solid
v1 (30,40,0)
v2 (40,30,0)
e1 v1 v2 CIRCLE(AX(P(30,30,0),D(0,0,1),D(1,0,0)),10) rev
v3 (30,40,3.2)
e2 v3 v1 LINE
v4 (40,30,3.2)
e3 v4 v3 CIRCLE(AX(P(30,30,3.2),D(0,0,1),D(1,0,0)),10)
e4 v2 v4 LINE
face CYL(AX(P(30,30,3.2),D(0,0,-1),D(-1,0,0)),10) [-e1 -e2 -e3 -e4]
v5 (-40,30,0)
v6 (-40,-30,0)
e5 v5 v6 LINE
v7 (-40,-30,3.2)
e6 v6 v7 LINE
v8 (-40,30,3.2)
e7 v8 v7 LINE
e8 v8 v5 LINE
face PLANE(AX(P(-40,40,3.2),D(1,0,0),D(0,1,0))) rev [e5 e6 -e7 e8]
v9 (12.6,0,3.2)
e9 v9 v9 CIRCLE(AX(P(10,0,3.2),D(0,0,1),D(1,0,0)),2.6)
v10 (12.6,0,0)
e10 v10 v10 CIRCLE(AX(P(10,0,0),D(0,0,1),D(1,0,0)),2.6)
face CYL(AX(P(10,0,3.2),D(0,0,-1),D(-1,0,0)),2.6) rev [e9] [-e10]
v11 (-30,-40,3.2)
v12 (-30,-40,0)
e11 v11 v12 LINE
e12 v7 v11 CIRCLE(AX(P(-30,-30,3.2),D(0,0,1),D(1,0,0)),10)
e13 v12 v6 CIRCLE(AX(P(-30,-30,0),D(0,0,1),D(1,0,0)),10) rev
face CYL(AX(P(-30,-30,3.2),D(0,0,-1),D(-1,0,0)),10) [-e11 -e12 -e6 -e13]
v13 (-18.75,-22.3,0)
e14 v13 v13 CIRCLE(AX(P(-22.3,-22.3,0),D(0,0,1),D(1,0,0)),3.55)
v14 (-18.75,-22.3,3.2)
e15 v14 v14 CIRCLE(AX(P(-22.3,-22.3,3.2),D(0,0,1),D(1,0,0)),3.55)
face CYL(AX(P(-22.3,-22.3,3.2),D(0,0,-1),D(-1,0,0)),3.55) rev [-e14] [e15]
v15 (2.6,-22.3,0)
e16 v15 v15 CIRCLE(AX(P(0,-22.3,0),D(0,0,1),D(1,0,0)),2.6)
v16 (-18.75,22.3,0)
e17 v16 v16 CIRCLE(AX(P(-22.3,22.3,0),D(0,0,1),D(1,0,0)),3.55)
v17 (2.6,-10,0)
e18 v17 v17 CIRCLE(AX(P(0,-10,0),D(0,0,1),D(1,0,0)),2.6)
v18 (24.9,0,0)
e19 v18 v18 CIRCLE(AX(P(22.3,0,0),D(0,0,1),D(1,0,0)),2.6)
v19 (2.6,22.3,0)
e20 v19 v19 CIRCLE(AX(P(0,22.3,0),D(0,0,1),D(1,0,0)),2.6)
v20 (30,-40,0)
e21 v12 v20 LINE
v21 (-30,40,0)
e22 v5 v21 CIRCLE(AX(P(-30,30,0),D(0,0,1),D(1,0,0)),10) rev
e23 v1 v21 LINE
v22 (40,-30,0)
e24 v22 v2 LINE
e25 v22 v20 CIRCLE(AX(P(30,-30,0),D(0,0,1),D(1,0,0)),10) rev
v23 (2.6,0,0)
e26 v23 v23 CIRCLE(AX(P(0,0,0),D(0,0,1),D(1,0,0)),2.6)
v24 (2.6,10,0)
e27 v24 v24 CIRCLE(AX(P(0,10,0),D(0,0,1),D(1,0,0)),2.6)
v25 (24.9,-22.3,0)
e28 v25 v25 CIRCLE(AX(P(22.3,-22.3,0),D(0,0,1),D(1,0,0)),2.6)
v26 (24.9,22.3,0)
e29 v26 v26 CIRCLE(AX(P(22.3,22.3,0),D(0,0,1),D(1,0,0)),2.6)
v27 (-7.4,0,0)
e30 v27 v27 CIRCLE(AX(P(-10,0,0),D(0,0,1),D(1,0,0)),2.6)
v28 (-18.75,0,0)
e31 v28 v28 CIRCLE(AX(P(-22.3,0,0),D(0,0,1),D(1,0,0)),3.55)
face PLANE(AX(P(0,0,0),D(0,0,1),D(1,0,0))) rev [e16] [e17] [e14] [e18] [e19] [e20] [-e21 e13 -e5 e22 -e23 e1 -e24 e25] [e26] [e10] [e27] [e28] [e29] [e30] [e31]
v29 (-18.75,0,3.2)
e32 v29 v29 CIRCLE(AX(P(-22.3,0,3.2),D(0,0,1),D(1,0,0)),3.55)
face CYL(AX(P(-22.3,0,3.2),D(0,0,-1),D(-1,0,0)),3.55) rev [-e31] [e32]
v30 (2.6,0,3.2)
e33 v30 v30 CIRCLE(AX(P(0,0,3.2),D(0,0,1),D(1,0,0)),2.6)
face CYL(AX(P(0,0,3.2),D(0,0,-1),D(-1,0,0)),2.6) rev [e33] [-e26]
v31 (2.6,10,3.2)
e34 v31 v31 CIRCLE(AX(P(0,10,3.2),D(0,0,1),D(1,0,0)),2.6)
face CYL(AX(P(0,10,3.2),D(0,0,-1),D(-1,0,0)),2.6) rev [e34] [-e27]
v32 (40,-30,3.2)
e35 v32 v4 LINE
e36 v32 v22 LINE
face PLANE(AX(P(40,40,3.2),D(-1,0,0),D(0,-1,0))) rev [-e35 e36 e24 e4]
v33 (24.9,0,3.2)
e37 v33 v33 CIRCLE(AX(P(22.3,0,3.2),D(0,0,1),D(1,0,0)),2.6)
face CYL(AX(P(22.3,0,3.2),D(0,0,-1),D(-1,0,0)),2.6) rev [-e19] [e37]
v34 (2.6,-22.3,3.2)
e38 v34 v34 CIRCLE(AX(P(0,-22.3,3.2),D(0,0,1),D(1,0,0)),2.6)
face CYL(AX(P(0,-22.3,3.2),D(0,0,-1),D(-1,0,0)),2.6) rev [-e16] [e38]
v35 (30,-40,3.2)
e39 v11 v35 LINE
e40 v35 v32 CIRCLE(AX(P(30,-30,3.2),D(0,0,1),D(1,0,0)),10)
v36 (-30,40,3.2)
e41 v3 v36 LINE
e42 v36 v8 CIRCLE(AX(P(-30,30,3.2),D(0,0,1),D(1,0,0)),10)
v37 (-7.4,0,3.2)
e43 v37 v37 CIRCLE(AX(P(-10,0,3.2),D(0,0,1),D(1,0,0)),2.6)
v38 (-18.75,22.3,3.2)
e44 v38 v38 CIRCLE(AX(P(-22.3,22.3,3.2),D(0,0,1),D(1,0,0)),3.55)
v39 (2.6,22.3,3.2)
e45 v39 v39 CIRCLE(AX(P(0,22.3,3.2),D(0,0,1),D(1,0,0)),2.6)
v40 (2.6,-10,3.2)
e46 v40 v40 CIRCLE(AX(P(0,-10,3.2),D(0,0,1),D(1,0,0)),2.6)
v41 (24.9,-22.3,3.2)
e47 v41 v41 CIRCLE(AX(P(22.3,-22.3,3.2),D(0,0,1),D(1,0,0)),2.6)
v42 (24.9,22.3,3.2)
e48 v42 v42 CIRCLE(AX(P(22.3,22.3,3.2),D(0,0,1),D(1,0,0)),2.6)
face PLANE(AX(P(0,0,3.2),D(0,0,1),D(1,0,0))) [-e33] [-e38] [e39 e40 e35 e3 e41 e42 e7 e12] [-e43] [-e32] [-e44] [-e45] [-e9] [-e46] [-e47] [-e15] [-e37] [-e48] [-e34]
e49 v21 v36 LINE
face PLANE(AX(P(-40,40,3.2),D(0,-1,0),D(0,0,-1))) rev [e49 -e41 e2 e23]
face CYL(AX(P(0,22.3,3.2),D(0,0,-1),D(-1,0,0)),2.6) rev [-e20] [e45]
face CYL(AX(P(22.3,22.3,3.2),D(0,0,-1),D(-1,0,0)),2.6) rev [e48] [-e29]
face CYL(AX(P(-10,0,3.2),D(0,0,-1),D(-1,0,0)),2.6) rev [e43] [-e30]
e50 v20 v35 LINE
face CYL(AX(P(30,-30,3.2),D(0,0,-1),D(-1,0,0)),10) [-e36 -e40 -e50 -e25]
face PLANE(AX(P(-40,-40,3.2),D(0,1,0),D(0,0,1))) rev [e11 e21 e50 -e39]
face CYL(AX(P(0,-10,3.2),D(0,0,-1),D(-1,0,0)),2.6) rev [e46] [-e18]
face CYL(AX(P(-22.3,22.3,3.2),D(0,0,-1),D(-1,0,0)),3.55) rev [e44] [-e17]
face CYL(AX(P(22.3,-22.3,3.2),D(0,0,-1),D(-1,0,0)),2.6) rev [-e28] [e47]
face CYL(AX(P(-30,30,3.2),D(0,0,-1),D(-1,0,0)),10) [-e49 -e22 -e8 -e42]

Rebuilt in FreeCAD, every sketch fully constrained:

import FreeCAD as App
import Part
import Sketcher
Q = App.Units.Quantity


def edges_at(feature, points):
    """Names of the edges that pass closest to the given points."""
    edges = feature.Shape.Edges
    near = lambda p: min(range(len(edges)), key=lambda i: edges[i].distToShape(Part.Vertex(*p))[0])
    return sorted({f"Edge{near(p) + 1}" for p in points})


def add_polygon(sketch, points):
    """Adds a closed chain of lines whose ends are joined by coincident constraints."""
    first, n = sketch.GeometryCount, len(points)
    for a, b in zip(points, points[1:] + points[:1]):
        sketch.addGeometry(Part.LineSegment(App.Vector(*a, 0), App.Vector(*b, 0)), False)
    for i in range(n):
        sketch.addConstraint(Sketcher.Constraint("Coincident", first + i, 2, first + (i + 1) % n, 1))

doc = App.newDocument("Part")
params = doc.addObject("Spreadsheet::Sheet", "Params")
for row, (alias, value) in enumerate([
    ("sketch1_diameter", "7.1 mm"),
    ("sketch1_diameter2", "5.2 mm"),
    ("sketch1_width", "80 mm"),
    ("pad1_length", "3.2 mm"),
    ("fillet_radius", "10 mm"),
], start=1):
    params.set(f"A{row}", alias)
    params.set(f"B{row}", "=" + value)
    params.setAlias(f"B{row}", alias)

body = doc.addObject("PartDesign::Body", "Body")

# Sketch on XY plane
sketch1 = doc.addObject("Sketcher::SketchObject", "Sketch")
body.addObject(sketch1)
sketch1.AttachmentSupport = (doc.XY_Plane, [""])
sketch1.MapMode = "FlatFace"
add_polygon(sketch1, [(-40, 40), (-40, -40), (40, -40), (40, 40)])  # lines 0-3
sketch1.addGeometry(Part.Circle(App.Vector(-22.3, -22.3, 0), App.Vector(0, 0, 1), 3.5), False)  # 4
sketch1.addGeometry(Part.Circle(App.Vector(0, -22.3, 0), App.Vector(0, 0, 1), 2.6), False)  # 5
sketch1.addGeometry(Part.Circle(App.Vector(22.3, -22.3, 0), App.Vector(0, 0, 1), 2.6), False)  # 6
sketch1.addGeometry(Part.Circle(App.Vector(0, -10, 0), App.Vector(0, 0, 1), 2.6), False)  # 7
sketch1.addGeometry(Part.Circle(App.Vector(-22.3, 0, 0), App.Vector(0, 0, 1), 3.5), False)  # 8
sketch1.addGeometry(Part.Circle(App.Vector(-10, 0, 0), App.Vector(0, 0, 1), 2.6), False)  # 9
sketch1.addGeometry(Part.Circle(App.Vector(-22.3, 22.3, 0), App.Vector(0, 0, 1), 3.5), False)  # 10
sketch1.addGeometry(Part.Circle(App.Vector(0, 0, 0), App.Vector(0, 0, 1), 2.6), False)  # 11
sketch1.addGeometry(Part.Circle(App.Vector(10, 0, 0), App.Vector(0, 0, 1), 2.6), False)  # 12
sketch1.addGeometry(Part.Circle(App.Vector(0, 10, 0), App.Vector(0, 0, 1), 2.6), False)  # 13
sketch1.addGeometry(Part.Circle(App.Vector(22.3, 0, 0), App.Vector(0, 0, 1), 2.6), False)  # 14
sketch1.addGeometry(Part.Circle(App.Vector(0, 22.3, 0), App.Vector(0, 0, 1), 2.6), False)  # 15
sketch1.addGeometry(Part.Circle(App.Vector(22.3, 22.3, 0), App.Vector(0, 0, 1), 2.6), False)  # 16
sketch1.addConstraint([
    Sketcher.Constraint("Vertical", 0),
    Sketcher.Constraint("Horizontal", 1),
    Sketcher.Constraint("Vertical", 2),
    Sketcher.Constraint("Horizontal", 3),
    Sketcher.Constraint("Coincident", 11, 3, -1, 1),
    Sketcher.Constraint("Equal", 5, 6),
    Sketcher.Constraint("Equal", 6, 7),
    Sketcher.Constraint("Equal", 4, 8),
    Sketcher.Constraint("Equal", 7, 9),
    Sketcher.Constraint("Equal", 8, 10),
    Sketcher.Constraint("Equal", 9, 11),
    Sketcher.Constraint("Equal", 11, 12),
    Sketcher.Constraint("Equal", 12, 13),
    Sketcher.Constraint("Equal", 13, 14),
    Sketcher.Constraint("Equal", 14, 15),
    Sketcher.Constraint("Equal", 15, 16),
    Sketcher.Constraint("Symmetric", 6, 3, 10, 3, -1, 1),
    Sketcher.Constraint("Symmetric", 9, 3, 12, 3, -1, 1),
    Sketcher.Constraint("Symmetric", 7, 3, 13, 3, -1, 1),
    Sketcher.Constraint("Symmetric", 8, 3, 14, 3, -1, 1),
    Sketcher.Constraint("Symmetric", 5, 3, 15, 3, -1, 1),
    Sketcher.Constraint("Symmetric", 4, 3, 16, 3, -1, 1),
    Sketcher.Constraint("Symmetric", 0, 2, 2, 2, -1, 1),
    Sketcher.Constraint("Symmetric", 4, 3, 6, 3, -2),
    Sketcher.Constraint("PointOnObject", 5, 3, -2),
    Sketcher.Constraint("PointOnObject", 7, 3, -2),
    Sketcher.Constraint("PointOnObject", 8, 3, -1),
    Sketcher.Constraint("PointOnObject", 9, 3, -1),
    Sketcher.Constraint("Horizontal", 4, 3, 5, 3),
    Sketcher.Constraint("Vertical", 4, 3, 8, 3),
    Sketcher.Constraint("Equal", 3, 0),
    Sketcher.Constraint("Diameter", 4, Q("7.1 mm")),
    Sketcher.Constraint("Diameter", 5, Q("5.2 mm")),
    Sketcher.Constraint("DistanceX", 1, 1, 1, 2, Q("80 mm")),
    Sketcher.Constraint("DistanceY", 7, 3, -1, 1, Q("10 mm")),
    Sketcher.Constraint("DistanceX", 9, 3, -1, 1, Q("10 mm")),
    Sketcher.Constraint("DistanceX", 4, 3, -1, 1, Q("22.3 mm")),
    Sketcher.Constraint("DistanceY", 4, 3, -1, 1, Q("22.3 mm")),
])
sketch1.setExpression("Constraints[35]", "Params.sketch1_diameter")
sketch1.setExpression("Constraints[36]", "Params.sketch1_diameter2")
sketch1.setExpression("Constraints[37]", "Params.sketch1_width")
pad1 = doc.addObject("PartDesign::Pad", "Pad")
body.addObject(pad1)
pad1.Profile = sketch1
pad1.setExpression("Length", "Params.pad1_length")
doc.recompute()

fillet = doc.addObject("PartDesign::Fillet", "Fillet")
body.addObject(fillet)
fillet.Base = (pad1, edges_at(pad1, [
    (40, -40, 1.6),
    (-40, -40, 1.6),
    (-40, 40, 1.6),
    (40, 40, 1.6),
]))
fillet.setExpression("Radius", "Params.fillet_radius")

doc.recompute()
